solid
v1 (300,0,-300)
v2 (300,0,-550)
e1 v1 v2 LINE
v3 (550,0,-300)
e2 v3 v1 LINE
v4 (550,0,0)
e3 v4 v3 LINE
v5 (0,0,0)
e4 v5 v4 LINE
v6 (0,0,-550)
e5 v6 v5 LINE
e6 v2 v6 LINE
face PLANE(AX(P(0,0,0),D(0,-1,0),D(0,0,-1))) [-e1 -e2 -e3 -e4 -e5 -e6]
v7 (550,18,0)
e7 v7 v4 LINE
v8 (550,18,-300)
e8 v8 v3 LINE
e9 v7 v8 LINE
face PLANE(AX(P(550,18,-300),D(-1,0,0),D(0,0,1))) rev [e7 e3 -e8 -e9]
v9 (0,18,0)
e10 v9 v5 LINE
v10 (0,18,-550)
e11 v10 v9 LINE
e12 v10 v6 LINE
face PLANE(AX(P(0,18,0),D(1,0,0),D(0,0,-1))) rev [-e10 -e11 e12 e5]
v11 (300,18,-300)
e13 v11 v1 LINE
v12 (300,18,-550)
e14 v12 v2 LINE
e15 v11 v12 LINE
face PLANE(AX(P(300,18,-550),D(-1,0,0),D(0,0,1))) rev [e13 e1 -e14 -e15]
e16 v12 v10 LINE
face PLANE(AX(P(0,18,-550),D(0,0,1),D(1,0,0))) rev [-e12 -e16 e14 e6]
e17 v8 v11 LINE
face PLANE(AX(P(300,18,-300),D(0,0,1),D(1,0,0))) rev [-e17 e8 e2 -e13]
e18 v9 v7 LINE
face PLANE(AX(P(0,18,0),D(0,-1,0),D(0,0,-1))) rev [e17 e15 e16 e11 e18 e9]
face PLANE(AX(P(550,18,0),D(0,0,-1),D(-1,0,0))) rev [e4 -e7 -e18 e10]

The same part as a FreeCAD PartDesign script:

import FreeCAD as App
import Part
import Sketcher

doc = App.newDocument("Part")
body = doc.addObject("PartDesign::Body", "Body")

# Sketch on XZ plane
sketch1 = body.newObject("Sketcher::SketchObject", "Sketch")
sketch1.AttachmentSupport = (doc.getObject("XZ_Plane"), [""])
sketch1.MapMode = "FlatFace"
sketch1.addGeometry(Part.LineSegment(App.Vector(0, -550, 0), App.Vector(0, 0, 0)), False)
sketch1.addGeometry(Part.LineSegment(App.Vector(0, 0, 0), App.Vector(550, 0, 0)), False)
sketch1.addGeometry(Part.LineSegment(App.Vector(550, 0, 0), App.Vector(550, -300, 0)), False)
sketch1.addGeometry(Part.LineSegment(App.Vector(550, -300, 0), App.Vector(300, -300, 0)), False)
sketch1.addGeometry(Part.LineSegment(App.Vector(300, -300, 0), App.Vector(300, -550, 0)), False)
sketch1.addGeometry(Part.LineSegment(App.Vector(300, -550, 0), App.Vector(0, -550, 0)), False)
sketch1.addConstraint(Sketcher.Constraint("Coincident", 0, 2, 1, 1))
sketch1.addConstraint(Sketcher.Constraint("Coincident", 1, 2, 2, 1))
sketch1.addConstraint(Sketcher.Constraint("Coincident", 2, 2, 3, 1))
sketch1.addConstraint(Sketcher.Constraint("Coincident", 3, 2, 4, 1))
sketch1.addConstraint(Sketcher.Constraint("Coincident", 4, 2, 5, 1))
sketch1.addConstraint(Sketcher.Constraint("Coincident", 5, 2, 0, 1))
sketch1.addConstraint(Sketcher.Constraint("Vertical", 0))
sketch1.addConstraint(Sketcher.Constraint("Horizontal", 1))
sketch1.addConstraint(Sketcher.Constraint("Vertical", 2))
sketch1.addConstraint(Sketcher.Constraint("Horizontal", 3))
sketch1.addConstraint(Sketcher.Constraint("Vertical", 4))
sketch1.addConstraint(Sketcher.Constraint("Horizontal", 5))
sketch1.addConstraint(Sketcher.Constraint("Coincident", 0, 2, -1, 1))
sketch1.addConstraint(Sketcher.Constraint("Equal", 1, 0))
sketch1.addConstraint(Sketcher.Constraint("Equal", 5, 2))
sketch1.addConstraint(Sketcher.Constraint("DistanceX", 1, 1, 1, 2, 550.0))
sketch1.addConstraint(Sketcher.Constraint("DistanceX", 3, 2, 3, 1, 250.0))
pad1 = body.newObject("PartDesign::Pad", "Pad")
pad1.Profile = sketch1
pad1.Length = 18
pad1.Reversed = True

doc.recompute()
